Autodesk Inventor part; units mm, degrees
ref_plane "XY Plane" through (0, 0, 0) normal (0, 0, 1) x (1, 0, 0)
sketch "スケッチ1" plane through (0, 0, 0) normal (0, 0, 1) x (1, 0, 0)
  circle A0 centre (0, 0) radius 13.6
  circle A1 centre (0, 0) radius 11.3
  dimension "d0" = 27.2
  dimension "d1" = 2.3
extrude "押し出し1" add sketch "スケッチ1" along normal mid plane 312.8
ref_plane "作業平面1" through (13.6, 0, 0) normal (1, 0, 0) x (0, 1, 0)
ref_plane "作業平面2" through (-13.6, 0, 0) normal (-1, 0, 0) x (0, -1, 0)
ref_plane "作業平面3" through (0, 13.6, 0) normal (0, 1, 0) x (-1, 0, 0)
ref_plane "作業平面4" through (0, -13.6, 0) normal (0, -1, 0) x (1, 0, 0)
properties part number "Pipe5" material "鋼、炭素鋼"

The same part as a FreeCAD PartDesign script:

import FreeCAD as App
import Part
import Sketcher
from FreeCAD import Vector
Q = App.Units.Quantity

doc = App.newDocument("Part")
body = doc.addObject("PartDesign::Body", "Body")

sketch1 = body.newObject("Sketcher::SketchObject", "Sketch")
sketch1.AttachmentSupport = (doc.getObject("XY_Plane"), [""])
sketch1.MapMode = "FlatFace"
sketch1.addGeometry(Part.Circle(Vector(0, 0, 0), Vector(0, 0, 1), 14), False)
sketch1.addGeometry(Part.Circle(Vector(0, 0, 0), Vector(0, 0, 1), 11), False)
sketch1.addConstraint(Sketcher.Constraint("Coincident", 0, 3, -1, 1))
sketch1.addConstraint(Sketcher.Constraint("Coincident", 1, 3, -1, 1))
sketch1.addConstraint(Sketcher.Constraint("Diameter", 0, Q("27.2 mm")))
sketch1.addConstraint(Sketcher.Constraint("Diameter", 1, Q("22.6 mm")))
pad1 = body.newObject("PartDesign::Pad", "Pad")
pad1.Profile = sketch1
pad1.Length = 312.8
pad1.Midplane = True

doc.recompute()
